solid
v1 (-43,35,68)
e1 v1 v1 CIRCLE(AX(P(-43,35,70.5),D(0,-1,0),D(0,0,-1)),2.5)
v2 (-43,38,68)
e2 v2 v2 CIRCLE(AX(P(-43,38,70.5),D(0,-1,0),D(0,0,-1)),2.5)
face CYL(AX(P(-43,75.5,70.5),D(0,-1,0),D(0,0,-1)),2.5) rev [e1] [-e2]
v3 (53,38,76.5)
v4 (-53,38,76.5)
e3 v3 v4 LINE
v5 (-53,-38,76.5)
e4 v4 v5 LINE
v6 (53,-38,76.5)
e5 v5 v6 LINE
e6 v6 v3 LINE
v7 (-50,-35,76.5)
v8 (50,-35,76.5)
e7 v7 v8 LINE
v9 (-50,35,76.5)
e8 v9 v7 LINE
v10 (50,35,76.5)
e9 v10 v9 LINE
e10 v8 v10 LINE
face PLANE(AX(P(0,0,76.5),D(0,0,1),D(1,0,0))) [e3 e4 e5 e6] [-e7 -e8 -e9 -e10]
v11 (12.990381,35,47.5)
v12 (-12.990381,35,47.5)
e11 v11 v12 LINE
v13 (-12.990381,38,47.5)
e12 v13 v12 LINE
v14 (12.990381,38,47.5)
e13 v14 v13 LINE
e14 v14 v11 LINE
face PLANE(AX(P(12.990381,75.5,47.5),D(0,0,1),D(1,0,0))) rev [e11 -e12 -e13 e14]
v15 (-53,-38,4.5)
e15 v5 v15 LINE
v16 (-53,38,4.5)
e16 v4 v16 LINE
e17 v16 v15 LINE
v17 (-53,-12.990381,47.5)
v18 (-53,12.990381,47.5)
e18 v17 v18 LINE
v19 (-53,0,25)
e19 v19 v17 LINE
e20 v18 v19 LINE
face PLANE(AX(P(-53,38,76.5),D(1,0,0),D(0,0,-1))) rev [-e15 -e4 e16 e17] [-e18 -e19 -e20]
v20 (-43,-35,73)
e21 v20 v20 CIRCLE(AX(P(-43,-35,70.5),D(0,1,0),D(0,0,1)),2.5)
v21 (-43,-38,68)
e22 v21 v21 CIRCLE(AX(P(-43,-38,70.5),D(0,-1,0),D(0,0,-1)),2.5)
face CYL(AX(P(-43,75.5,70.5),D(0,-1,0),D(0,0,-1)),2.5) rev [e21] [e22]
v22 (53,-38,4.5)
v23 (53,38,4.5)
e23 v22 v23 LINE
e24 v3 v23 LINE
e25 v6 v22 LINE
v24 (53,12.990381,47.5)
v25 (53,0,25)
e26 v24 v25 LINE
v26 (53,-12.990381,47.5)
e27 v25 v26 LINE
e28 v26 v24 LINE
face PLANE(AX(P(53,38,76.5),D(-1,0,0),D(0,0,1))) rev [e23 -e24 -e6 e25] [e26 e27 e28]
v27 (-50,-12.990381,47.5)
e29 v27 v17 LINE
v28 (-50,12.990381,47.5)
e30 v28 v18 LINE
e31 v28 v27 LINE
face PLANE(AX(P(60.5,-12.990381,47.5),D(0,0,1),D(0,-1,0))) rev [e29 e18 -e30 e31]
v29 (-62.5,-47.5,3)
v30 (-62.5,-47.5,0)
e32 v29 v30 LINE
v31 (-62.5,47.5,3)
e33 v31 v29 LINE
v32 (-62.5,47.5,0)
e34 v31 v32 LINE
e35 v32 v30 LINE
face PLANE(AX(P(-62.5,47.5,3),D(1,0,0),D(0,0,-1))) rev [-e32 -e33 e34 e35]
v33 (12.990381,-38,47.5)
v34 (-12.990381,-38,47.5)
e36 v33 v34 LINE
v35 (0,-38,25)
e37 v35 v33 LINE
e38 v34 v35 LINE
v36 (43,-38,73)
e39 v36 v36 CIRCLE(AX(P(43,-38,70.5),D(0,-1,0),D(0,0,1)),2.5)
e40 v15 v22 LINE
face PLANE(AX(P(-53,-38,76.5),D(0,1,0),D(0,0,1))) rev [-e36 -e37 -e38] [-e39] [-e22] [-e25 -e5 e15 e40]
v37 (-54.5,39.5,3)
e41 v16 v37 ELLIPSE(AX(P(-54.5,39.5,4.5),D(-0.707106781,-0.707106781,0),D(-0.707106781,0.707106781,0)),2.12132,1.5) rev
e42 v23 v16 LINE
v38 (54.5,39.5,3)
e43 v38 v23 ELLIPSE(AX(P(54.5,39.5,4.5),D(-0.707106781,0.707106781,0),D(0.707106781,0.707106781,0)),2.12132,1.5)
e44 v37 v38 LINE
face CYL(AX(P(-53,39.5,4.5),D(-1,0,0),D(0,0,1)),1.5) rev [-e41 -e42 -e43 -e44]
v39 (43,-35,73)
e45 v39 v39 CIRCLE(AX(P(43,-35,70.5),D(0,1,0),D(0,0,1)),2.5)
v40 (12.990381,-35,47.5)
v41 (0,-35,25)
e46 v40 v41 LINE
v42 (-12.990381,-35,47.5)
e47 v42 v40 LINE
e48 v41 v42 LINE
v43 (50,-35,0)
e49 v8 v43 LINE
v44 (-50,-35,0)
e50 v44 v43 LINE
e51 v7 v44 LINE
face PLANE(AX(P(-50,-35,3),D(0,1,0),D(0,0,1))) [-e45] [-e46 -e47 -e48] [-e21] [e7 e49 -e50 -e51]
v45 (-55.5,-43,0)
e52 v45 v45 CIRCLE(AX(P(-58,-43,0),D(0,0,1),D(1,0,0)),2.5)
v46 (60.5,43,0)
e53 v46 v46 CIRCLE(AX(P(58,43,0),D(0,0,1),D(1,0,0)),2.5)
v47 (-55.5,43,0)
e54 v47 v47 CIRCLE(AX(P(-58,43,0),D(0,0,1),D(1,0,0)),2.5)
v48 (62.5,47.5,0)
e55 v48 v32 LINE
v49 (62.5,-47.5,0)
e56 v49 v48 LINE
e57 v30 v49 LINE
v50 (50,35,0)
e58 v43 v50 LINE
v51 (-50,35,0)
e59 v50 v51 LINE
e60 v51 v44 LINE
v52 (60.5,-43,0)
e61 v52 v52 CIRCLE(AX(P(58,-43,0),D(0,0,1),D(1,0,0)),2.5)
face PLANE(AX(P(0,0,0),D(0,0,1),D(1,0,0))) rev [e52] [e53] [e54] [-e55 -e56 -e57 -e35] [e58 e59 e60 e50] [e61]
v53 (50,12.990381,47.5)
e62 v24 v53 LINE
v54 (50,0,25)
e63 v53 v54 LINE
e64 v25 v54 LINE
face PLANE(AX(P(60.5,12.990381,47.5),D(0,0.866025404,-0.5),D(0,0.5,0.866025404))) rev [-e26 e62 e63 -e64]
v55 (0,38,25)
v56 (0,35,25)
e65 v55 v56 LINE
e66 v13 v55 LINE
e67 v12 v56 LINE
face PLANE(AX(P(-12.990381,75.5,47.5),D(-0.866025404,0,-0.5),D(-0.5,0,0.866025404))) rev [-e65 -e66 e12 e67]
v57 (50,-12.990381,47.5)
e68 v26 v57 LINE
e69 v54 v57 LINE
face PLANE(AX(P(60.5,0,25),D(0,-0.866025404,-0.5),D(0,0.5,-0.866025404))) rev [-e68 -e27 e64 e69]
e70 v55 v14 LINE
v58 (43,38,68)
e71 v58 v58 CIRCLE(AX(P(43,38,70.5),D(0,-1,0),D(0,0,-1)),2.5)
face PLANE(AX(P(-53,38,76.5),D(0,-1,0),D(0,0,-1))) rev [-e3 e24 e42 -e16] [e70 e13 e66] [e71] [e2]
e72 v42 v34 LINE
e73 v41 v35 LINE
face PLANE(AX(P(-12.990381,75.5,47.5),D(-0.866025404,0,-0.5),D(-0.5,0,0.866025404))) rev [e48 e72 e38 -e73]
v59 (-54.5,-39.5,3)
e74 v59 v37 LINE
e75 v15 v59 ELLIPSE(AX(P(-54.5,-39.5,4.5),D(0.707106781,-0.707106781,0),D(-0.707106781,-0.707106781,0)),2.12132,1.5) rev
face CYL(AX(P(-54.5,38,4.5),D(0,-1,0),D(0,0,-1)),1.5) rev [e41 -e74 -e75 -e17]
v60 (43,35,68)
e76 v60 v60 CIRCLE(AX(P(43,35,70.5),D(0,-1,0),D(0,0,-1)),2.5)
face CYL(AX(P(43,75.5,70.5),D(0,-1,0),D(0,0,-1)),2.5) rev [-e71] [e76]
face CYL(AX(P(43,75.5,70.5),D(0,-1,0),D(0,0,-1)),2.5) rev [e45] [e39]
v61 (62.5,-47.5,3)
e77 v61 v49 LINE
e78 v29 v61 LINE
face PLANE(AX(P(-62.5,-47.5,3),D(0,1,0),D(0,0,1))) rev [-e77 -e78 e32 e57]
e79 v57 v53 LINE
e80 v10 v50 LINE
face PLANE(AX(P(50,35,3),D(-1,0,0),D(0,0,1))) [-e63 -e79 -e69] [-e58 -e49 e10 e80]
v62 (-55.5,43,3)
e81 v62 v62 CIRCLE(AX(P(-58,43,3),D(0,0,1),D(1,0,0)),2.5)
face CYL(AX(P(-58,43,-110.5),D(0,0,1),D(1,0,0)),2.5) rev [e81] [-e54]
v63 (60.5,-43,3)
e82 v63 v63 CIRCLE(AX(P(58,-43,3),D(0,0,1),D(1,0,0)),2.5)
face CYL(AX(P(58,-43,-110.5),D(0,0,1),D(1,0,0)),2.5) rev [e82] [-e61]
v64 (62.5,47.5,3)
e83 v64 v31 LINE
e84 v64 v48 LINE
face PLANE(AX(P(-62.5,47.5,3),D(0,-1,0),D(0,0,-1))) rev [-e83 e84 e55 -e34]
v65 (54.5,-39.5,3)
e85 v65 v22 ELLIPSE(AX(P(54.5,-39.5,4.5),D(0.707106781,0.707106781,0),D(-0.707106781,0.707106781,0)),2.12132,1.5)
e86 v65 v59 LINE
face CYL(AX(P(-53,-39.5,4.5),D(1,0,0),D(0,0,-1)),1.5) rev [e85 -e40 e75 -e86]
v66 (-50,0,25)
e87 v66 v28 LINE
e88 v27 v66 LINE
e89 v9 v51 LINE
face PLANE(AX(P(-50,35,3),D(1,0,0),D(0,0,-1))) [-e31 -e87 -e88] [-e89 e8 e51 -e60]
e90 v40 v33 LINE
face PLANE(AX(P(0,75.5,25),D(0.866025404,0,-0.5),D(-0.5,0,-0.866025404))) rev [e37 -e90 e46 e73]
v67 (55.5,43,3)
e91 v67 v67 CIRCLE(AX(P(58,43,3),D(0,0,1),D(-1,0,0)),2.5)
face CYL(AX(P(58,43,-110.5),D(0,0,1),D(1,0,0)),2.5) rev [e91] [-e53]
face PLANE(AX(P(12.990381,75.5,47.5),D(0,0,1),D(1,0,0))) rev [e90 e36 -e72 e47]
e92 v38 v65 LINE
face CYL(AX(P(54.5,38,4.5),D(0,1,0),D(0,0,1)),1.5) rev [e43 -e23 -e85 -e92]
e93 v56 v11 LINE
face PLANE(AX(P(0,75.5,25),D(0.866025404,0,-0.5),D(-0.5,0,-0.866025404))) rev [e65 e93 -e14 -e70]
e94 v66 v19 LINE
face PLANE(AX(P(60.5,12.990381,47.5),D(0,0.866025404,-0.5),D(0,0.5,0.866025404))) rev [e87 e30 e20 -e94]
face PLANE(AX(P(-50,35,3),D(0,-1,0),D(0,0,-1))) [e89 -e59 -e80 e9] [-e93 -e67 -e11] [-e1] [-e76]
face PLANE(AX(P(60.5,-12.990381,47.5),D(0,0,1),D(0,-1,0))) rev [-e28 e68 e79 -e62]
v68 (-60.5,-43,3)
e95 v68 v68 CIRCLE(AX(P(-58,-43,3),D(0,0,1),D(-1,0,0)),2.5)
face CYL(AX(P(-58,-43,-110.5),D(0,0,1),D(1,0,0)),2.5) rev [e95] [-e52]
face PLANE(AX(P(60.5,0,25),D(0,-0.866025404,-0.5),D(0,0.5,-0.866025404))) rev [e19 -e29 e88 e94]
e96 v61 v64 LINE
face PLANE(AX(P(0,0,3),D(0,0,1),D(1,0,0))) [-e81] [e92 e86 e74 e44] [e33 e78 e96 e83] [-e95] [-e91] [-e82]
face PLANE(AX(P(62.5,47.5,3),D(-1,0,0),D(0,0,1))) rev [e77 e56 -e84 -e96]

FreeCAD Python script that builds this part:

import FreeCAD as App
import Part
import Sketcher
from FreeCAD import Vector
Q = App.Units.Quantity


def edges_at(feature, points):
    """Names of the edges that pass closest to the given points."""
    edges = feature.Shape.Edges
    near = lambda p: min(range(len(edges)), key=lambda i: edges[i].distToShape(Part.Vertex(*p))[0])
    return sorted({f"Edge{near(p) + 1}" for p in points})


def add_polygon(sketch, points):
    """Adds a closed chain of lines whose ends are joined by coincident constraints."""
    first, n = sketch.GeometryCount, len(points)
    for a, b in zip(points, points[1:] + points[:1]):
        sketch.addGeometry(Part.LineSegment(App.Vector(*a, 0), App.Vector(*b, 0)), False)
    for i in range(n):
        sketch.addConstraint(Sketcher.Constraint("Coincident", first + i, 2, first + (i + 1) % n, 1))

doc = App.newDocument("Part")
params = doc.addObject("Spreadsheet::Sheet", "Params")
for row, (alias, value) in enumerate([
    ("sketch1_width", "125 mm"),
    ("sketch1_width2", "100 mm"),
    ("sketch1_height", "95 mm"),
    ("sketch1_height2", "70 mm"),
    ("pad1_length", "3 mm"),
    ("sketch2_width", "106 mm"),
    ("sketch2_width2", "100 mm"),
    ("sketch2_height", "76 mm"),
    ("sketch2_height2", "70 mm"),
    ("pad2_length", "73.5 mm"),
    ("sketch3_diameter", "5 mm"),
    ("pocket1_length", "113.5 mm"),
    ("fillet_radius", "1.5 mm"),
    ("sketch4_diameter", "5 mm"),
    ("pocket2_length", "113.5 mm"),
    ("pocket3_length", "113.5 mm"),
    ("pocket4_length", "113.5 mm"),
], start=1):
    params.set(f"A{row}", alias)
    params.set(f"B{row}", "=" + value)
    params.setAlias(f"B{row}", alias)

body = doc.addObject("PartDesign::Body", "Body")

# Sketch on XY plane
sketch1 = doc.addObject("Sketcher::SketchObject", "Sketch")
body.addObject(sketch1)
sketch1.AttachmentSupport = (doc.XY_Plane, [""])
sketch1.MapMode = "FlatFace"
add_polygon(sketch1, [(-62, 48), (-62, -48), (62, -48), (62, 48)])  # lines 0-3
add_polygon(sketch1, [(50, -35), (-50, -35), (-50, 35), (50, 35)])  # lines 4-7
sketch1.addConstraint([
    Sketcher.Constraint("Vertical", 0),
    Sketcher.Constraint("Horizontal", 1),
    Sketcher.Constraint("Vertical", 2),
    Sketcher.Constraint("Horizontal", 3),
    Sketcher.Constraint("Horizontal", 4),
    Sketcher.Constraint("Vertical", 5),
    Sketcher.Constraint("Horizontal", 6),
    Sketcher.Constraint("Vertical", 7),
    Sketcher.Constraint("Symmetric", 0, 2, 2, 2, -1, 1),
    Sketcher.Constraint("Symmetric", 4, 2, 6, 2, -1, 1),
    Sketcher.Constraint("DistanceX", 1, 1, 1, 2, Q("125 mm")),
    Sketcher.Constraint("DistanceX", 4, 2, 4, 1, Q("100 mm")),
    Sketcher.Constraint("DistanceY", 0, 2, 0, 1, Q("95 mm")),
    Sketcher.Constraint("DistanceY", 5, 1, 5, 2, Q("70 mm")),
])
sketch1.setExpression("Constraints[18]", "Params.sketch1_width")
sketch1.setExpression("Constraints[19]", "Params.sketch1_width2")
sketch1.setExpression("Constraints[20]", "Params.sketch1_height")
sketch1.setExpression("Constraints[21]", "Params.sketch1_height2")
pad1 = doc.addObject("PartDesign::Pad", "Pad")
body.addObject(pad1)
pad1.Profile = sketch1
pad1.setExpression("Length", "Params.pad1_length")

# Sketch on XY plane
sketch2 = doc.addObject("Sketcher::SketchObject", "Sketch001")
body.addObject(sketch2)
sketch2.AttachmentSupport = (doc.XY_Plane, [""])
sketch2.MapMode = "FlatFace"
sketch2.AttachmentOffset = App.Placement(Vector(0, 0, 3), App.Rotation())
add_polygon(sketch2, [(-53, 38), (-53, -38), (53, -38), (53, 38)])  # lines 0-3
add_polygon(sketch2, [(50, -35), (-50, -35), (-50, 35), (50, 35)])  # lines 4-7
sketch2.addConstraint([
    Sketcher.Constraint("Vertical", 0),
    Sketcher.Constraint("Horizontal", 1),
    Sketcher.Constraint("Vertical", 2),
    Sketcher.Constraint("Horizontal", 3),
    Sketcher.Constraint("Horizontal", 4),
    Sketcher.Constraint("Vertical", 5),
    Sketcher.Constraint("Horizontal", 6),
    Sketcher.Constraint("Vertical", 7),
    Sketcher.Constraint("Symmetric", 0, 2, 2, 2, -1, 1),
    Sketcher.Constraint("Symmetric", 4, 2, 6, 2, -1, 1),
    Sketcher.Constraint("DistanceX", 1, 1, 1, 2, Q("106 mm")),
    Sketcher.Constraint("DistanceX", 4, 2, 4, 1, Q("100 mm")),
    Sketcher.Constraint("DistanceY", 0, 2, 0, 1, Q("76 mm")),
    Sketcher.Constraint("DistanceY", 5, 1, 5, 2, Q("70 mm")),
])
sketch2.setExpression("Constraints[18]", "Params.sketch2_width")
sketch2.setExpression("Constraints[19]", "Params.sketch2_width2")
sketch2.setExpression("Constraints[20]", "Params.sketch2_height")
sketch2.setExpression("Constraints[21]", "Params.sketch2_height2")
pad2 = doc.addObject("PartDesign::Pad", "Pad001")
body.addObject(pad2)
pad2.Profile = sketch2
pad2.setExpression("Length", "Params.pad2_length")

# Sketch on XZ plane
sketch3 = doc.addObject("Sketcher::SketchObject", "Sketch002")
body.addObject(sketch3)
sketch3.AttachmentSupport = (doc.XZ_Plane, [""])
sketch3.MapMode = "FlatFace"
sketch3.AttachmentOffset = App.Placement(Vector(0, 0, 38), App.Rotation())
sketch3.addGeometry([
    Part.Circle(Vector(-43, 70.5, 0), Vector(0, 0, 1), 2.5),
    Part.Circle(Vector(43, 70.5, 0), Vector(0, 0, 1), 2.5),
], False)
sketch3.addConstraint([
    Sketcher.Constraint("Equal", 0, 1),
    Sketcher.Constraint("Symmetric", 0, 3, 1, 3, -2),
    Sketcher.Constraint("Diameter", 0, Q("5 mm")),
    Sketcher.Constraint("DistanceX", 0, 3, -1, 1, Q("43 mm")),
    Sketcher.Constraint("DistanceY", -1, 1, 0, 3, Q("70.5 mm")),
])
sketch3.setExpression("Constraints[2]", "Params.sketch3_diameter")
pocket1 = doc.addObject("PartDesign::Pocket", "Pocket")
body.addObject(pocket1)
pocket1.Profile = sketch3
pocket1.setExpression("Length", "Params.pocket1_length")
doc.recompute()

fillet = doc.addObject("PartDesign::Fillet", "Fillet")
body.addObject(fillet)
fillet.Base = (pocket1, edges_at(pocket1, [
    (53, 0, 3),
    (0, 38, 3),
    (-53, 0, 3),
    (0, -38, 3),
]))
fillet.setExpression("Radius", "Params.fillet_radius")

# Sketch on XY plane
sketch4 = doc.addObject("Sketcher::SketchObject", "Sketch003")
body.addObject(sketch4)
sketch4.AttachmentSupport = (doc.XY_Plane, [""])
sketch4.MapMode = "FlatFace"
sketch4.AttachmentOffset = App.Placement(Vector(0, 0, 3), App.Rotation())
sketch4.addGeometry([
    Part.Circle(Vector(-58, 43, 0), Vector(0, 0, 1), 2.5),
    Part.Circle(Vector(58, 43, 0), Vector(0, 0, 1), 2.5),
    Part.Circle(Vector(58, -43, 0), Vector(0, 0, 1), 2.5),
    Part.Circle(Vector(-58, -43, 0), Vector(0, 0, 1), 2.5),
], False)
sketch4.addConstraint([
    Sketcher.Constraint("Equal", 0, 1),
    Sketcher.Constraint("Equal", 1, 2),
    Sketcher.Constraint("Equal", 2, 3),
    Sketcher.Constraint("Symmetric", 0, 3, 2, 3, -1, 1),
    Sketcher.Constraint("Symmetric", 1, 3, 3, 3, -1, 1),
    Sketcher.Constraint("Symmetric", 0, 3, 1, 3, -2),
    Sketcher.Constraint("Diameter", 0, Q("5 mm")),
    Sketcher.Constraint("DistanceX", 0, 3, -1, 1, Q("58 mm")),
    Sketcher.Constraint("DistanceY", -1, 1, 0, 3, Q("43 mm")),
])
sketch4.setExpression("Constraints[6]", "Params.sketch4_diameter")
pocket2 = doc.addObject("PartDesign::Pocket", "Pocket001")
body.addObject(pocket2)
pocket2.Profile = sketch4
pocket2.setExpression("Length", "Params.pocket2_length")

# Sketch on XZ plane
sketch5 = doc.addObject("Sketcher::SketchObject", "Sketch004")
body.addObject(sketch5)
sketch5.AttachmentSupport = (doc.XZ_Plane, [""])
sketch5.MapMode = "FlatFace"
sketch5.AttachmentOffset = App.Placement(Vector(0, 0, 38), App.Rotation())
add_polygon(sketch5, [(0, 25), (13, 48), (-13, 48)])  # lines 0-2
sketch5.addConstraint([
    Sketcher.Constraint("Horizontal", 1),
    Sketcher.Constraint("PointOnObject", 2, 2, -2),
    Sketcher.Constraint("Equal", 0, 2),
    Sketcher.Constraint("Angle", 0, Q("60 deg")),
    Sketcher.Constraint("DistanceY", -1, 1, 2, 2, Q("25 mm")),
    Sketcher.Constraint("DistanceY", -1, 1, 0, 2, Q("47.5 mm")),
])
pocket3 = doc.addObject("PartDesign::Pocket", "Pocket002")
body.addObject(pocket3)
pocket3.Profile = sketch5
pocket3.setExpression("Length", "Params.pocket3_length")

# Sketch on YZ plane
sketch6 = doc.addObject("Sketcher::SketchObject", "Sketch005")
body.addObject(sketch6)
sketch6.AttachmentSupport = (doc.YZ_Plane, [""])
sketch6.MapMode = "FlatFace"
sketch6.AttachmentOffset = App.Placement(Vector(0, 0, -53), App.Rotation())
add_polygon(sketch6, [(0, 25), (-13, 48), (13, 48)])  # lines 0-2
sketch6.addConstraint([
    Sketcher.Constraint("Horizontal", 1),
    Sketcher.Constraint("PointOnObject", 2, 2, -2),
    Sketcher.Constraint("Equal", 0, 2),
    Sketcher.Constraint("Angle", 0, Q("120 deg")),
    Sketcher.Constraint("DistanceY", -1, 1, 2, 2, Q("25 mm")),
    Sketcher.Constraint("DistanceY", -1, 1, 0, 2, Q("47.5 mm")),
])
pocket4 = doc.addObject("PartDesign::Pocket", "Pocket003")
body.addObject(pocket4)
pocket4.Profile = sketch6
pocket4.setExpression("Length", "Params.pocket4_length")
pocket4.Reversed = True

doc.recompute()
